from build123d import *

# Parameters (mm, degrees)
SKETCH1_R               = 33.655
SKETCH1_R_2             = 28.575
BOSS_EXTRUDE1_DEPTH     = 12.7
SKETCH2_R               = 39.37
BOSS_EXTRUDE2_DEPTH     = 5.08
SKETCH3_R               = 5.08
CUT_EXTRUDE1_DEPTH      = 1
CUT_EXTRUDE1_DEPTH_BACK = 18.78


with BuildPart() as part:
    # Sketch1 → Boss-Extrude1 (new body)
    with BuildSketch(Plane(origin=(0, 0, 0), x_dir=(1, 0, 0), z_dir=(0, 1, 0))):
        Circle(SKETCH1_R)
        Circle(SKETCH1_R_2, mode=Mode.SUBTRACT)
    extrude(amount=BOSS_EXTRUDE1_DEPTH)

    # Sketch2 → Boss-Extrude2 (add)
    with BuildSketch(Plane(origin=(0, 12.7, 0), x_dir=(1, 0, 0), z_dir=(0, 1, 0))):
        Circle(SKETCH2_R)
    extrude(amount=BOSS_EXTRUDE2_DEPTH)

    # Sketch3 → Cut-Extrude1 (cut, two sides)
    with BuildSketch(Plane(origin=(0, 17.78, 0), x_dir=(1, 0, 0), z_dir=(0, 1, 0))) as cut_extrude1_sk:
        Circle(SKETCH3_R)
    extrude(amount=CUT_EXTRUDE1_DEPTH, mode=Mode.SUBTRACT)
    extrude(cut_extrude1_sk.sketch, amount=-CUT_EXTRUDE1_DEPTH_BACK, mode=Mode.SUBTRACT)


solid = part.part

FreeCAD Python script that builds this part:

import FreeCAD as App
import Part
import Sketcher
from FreeCAD import Vector
Q = App.Units.Quantity

doc = App.newDocument("Part")
body = doc.addObject("PartDesign::Body", "Body")

sketch1 = body.newObject("Sketcher::SketchObject", "Sketch")
sketch1.AttachmentSupport = (doc.getObject("XZ_Plane"), [""])
sketch1.MapMode = "FlatFace"
sketch1.addGeometry([
    Part.Circle(Vector(0, 0, 0), Vector(0, 0, 1), 34),
    Part.Circle(Vector(0, 0, 0), Vector(0, 0, 1), 29),
], False)
sketch1.addConstraint([
    Sketcher.Constraint("Coincident", 0, 3, -1, 1),
    Sketcher.Constraint("Coincident", 1, 3, -1, 1),
    Sketcher.Constraint("Diameter", 0, Q("2.65 in")),
    Sketcher.Constraint("Diameter", 1, Q("2.25 in")),
])
pad1 = body.newObject("PartDesign::Pad", "Pad")
pad1.Profile = sketch1
pad1.Length = Q("0.5 in")
pad1.Reversed = True

sketch2 = body.newObject("Sketcher::SketchObject", "Sketch001")
sketch2.AttachmentSupport = (doc.getObject("XZ_Plane"), [""])
sketch2.MapMode = "FlatFace"
sketch2.AttachmentOffset = App.Placement(Vector(0, 0, -0.5 * 25.4), App.Rotation())
sketch2.addGeometry(Part.Circle(Vector(0, 0, 0), Vector(0, 0, 1), 39), False)
sketch2.addConstraint([
    Sketcher.Constraint("Coincident", 0, 3, -1, 1),
    Sketcher.Constraint("Diameter", 0, Q("3.1 in")),
])
pad2 = body.newObject("PartDesign::Pad", "Pad001")
pad2.Profile = sketch2
pad2.Length = Q("0.2 in")
pad2.Reversed = True

sketch3 = body.newObject("Sketcher::SketchObject", "Sketch002")
sketch3.AttachmentSupport = (doc.getObject("XZ_Plane"), [""])
sketch3.MapMode = "FlatFace"
sketch3.AttachmentOffset = App.Placement(Vector(0, 0, -0.7 * 25.4), App.Rotation())
sketch3.addGeometry(Part.Circle(Vector(0, 0, 0), Vector(0, 0, 1), 5), False)
sketch3.addConstraint([
    Sketcher.Constraint("Coincident", 0, 3, -1, 1),
    Sketcher.Constraint("Diameter", 0, Q("0.4 in")),
])
pocket1 = body.newObject("PartDesign::Pocket", "Pocket")
pocket1.Profile = sketch3
pocket1.Type = "ThroughAll"
pocket1.Midplane = True

doc.recompute()
